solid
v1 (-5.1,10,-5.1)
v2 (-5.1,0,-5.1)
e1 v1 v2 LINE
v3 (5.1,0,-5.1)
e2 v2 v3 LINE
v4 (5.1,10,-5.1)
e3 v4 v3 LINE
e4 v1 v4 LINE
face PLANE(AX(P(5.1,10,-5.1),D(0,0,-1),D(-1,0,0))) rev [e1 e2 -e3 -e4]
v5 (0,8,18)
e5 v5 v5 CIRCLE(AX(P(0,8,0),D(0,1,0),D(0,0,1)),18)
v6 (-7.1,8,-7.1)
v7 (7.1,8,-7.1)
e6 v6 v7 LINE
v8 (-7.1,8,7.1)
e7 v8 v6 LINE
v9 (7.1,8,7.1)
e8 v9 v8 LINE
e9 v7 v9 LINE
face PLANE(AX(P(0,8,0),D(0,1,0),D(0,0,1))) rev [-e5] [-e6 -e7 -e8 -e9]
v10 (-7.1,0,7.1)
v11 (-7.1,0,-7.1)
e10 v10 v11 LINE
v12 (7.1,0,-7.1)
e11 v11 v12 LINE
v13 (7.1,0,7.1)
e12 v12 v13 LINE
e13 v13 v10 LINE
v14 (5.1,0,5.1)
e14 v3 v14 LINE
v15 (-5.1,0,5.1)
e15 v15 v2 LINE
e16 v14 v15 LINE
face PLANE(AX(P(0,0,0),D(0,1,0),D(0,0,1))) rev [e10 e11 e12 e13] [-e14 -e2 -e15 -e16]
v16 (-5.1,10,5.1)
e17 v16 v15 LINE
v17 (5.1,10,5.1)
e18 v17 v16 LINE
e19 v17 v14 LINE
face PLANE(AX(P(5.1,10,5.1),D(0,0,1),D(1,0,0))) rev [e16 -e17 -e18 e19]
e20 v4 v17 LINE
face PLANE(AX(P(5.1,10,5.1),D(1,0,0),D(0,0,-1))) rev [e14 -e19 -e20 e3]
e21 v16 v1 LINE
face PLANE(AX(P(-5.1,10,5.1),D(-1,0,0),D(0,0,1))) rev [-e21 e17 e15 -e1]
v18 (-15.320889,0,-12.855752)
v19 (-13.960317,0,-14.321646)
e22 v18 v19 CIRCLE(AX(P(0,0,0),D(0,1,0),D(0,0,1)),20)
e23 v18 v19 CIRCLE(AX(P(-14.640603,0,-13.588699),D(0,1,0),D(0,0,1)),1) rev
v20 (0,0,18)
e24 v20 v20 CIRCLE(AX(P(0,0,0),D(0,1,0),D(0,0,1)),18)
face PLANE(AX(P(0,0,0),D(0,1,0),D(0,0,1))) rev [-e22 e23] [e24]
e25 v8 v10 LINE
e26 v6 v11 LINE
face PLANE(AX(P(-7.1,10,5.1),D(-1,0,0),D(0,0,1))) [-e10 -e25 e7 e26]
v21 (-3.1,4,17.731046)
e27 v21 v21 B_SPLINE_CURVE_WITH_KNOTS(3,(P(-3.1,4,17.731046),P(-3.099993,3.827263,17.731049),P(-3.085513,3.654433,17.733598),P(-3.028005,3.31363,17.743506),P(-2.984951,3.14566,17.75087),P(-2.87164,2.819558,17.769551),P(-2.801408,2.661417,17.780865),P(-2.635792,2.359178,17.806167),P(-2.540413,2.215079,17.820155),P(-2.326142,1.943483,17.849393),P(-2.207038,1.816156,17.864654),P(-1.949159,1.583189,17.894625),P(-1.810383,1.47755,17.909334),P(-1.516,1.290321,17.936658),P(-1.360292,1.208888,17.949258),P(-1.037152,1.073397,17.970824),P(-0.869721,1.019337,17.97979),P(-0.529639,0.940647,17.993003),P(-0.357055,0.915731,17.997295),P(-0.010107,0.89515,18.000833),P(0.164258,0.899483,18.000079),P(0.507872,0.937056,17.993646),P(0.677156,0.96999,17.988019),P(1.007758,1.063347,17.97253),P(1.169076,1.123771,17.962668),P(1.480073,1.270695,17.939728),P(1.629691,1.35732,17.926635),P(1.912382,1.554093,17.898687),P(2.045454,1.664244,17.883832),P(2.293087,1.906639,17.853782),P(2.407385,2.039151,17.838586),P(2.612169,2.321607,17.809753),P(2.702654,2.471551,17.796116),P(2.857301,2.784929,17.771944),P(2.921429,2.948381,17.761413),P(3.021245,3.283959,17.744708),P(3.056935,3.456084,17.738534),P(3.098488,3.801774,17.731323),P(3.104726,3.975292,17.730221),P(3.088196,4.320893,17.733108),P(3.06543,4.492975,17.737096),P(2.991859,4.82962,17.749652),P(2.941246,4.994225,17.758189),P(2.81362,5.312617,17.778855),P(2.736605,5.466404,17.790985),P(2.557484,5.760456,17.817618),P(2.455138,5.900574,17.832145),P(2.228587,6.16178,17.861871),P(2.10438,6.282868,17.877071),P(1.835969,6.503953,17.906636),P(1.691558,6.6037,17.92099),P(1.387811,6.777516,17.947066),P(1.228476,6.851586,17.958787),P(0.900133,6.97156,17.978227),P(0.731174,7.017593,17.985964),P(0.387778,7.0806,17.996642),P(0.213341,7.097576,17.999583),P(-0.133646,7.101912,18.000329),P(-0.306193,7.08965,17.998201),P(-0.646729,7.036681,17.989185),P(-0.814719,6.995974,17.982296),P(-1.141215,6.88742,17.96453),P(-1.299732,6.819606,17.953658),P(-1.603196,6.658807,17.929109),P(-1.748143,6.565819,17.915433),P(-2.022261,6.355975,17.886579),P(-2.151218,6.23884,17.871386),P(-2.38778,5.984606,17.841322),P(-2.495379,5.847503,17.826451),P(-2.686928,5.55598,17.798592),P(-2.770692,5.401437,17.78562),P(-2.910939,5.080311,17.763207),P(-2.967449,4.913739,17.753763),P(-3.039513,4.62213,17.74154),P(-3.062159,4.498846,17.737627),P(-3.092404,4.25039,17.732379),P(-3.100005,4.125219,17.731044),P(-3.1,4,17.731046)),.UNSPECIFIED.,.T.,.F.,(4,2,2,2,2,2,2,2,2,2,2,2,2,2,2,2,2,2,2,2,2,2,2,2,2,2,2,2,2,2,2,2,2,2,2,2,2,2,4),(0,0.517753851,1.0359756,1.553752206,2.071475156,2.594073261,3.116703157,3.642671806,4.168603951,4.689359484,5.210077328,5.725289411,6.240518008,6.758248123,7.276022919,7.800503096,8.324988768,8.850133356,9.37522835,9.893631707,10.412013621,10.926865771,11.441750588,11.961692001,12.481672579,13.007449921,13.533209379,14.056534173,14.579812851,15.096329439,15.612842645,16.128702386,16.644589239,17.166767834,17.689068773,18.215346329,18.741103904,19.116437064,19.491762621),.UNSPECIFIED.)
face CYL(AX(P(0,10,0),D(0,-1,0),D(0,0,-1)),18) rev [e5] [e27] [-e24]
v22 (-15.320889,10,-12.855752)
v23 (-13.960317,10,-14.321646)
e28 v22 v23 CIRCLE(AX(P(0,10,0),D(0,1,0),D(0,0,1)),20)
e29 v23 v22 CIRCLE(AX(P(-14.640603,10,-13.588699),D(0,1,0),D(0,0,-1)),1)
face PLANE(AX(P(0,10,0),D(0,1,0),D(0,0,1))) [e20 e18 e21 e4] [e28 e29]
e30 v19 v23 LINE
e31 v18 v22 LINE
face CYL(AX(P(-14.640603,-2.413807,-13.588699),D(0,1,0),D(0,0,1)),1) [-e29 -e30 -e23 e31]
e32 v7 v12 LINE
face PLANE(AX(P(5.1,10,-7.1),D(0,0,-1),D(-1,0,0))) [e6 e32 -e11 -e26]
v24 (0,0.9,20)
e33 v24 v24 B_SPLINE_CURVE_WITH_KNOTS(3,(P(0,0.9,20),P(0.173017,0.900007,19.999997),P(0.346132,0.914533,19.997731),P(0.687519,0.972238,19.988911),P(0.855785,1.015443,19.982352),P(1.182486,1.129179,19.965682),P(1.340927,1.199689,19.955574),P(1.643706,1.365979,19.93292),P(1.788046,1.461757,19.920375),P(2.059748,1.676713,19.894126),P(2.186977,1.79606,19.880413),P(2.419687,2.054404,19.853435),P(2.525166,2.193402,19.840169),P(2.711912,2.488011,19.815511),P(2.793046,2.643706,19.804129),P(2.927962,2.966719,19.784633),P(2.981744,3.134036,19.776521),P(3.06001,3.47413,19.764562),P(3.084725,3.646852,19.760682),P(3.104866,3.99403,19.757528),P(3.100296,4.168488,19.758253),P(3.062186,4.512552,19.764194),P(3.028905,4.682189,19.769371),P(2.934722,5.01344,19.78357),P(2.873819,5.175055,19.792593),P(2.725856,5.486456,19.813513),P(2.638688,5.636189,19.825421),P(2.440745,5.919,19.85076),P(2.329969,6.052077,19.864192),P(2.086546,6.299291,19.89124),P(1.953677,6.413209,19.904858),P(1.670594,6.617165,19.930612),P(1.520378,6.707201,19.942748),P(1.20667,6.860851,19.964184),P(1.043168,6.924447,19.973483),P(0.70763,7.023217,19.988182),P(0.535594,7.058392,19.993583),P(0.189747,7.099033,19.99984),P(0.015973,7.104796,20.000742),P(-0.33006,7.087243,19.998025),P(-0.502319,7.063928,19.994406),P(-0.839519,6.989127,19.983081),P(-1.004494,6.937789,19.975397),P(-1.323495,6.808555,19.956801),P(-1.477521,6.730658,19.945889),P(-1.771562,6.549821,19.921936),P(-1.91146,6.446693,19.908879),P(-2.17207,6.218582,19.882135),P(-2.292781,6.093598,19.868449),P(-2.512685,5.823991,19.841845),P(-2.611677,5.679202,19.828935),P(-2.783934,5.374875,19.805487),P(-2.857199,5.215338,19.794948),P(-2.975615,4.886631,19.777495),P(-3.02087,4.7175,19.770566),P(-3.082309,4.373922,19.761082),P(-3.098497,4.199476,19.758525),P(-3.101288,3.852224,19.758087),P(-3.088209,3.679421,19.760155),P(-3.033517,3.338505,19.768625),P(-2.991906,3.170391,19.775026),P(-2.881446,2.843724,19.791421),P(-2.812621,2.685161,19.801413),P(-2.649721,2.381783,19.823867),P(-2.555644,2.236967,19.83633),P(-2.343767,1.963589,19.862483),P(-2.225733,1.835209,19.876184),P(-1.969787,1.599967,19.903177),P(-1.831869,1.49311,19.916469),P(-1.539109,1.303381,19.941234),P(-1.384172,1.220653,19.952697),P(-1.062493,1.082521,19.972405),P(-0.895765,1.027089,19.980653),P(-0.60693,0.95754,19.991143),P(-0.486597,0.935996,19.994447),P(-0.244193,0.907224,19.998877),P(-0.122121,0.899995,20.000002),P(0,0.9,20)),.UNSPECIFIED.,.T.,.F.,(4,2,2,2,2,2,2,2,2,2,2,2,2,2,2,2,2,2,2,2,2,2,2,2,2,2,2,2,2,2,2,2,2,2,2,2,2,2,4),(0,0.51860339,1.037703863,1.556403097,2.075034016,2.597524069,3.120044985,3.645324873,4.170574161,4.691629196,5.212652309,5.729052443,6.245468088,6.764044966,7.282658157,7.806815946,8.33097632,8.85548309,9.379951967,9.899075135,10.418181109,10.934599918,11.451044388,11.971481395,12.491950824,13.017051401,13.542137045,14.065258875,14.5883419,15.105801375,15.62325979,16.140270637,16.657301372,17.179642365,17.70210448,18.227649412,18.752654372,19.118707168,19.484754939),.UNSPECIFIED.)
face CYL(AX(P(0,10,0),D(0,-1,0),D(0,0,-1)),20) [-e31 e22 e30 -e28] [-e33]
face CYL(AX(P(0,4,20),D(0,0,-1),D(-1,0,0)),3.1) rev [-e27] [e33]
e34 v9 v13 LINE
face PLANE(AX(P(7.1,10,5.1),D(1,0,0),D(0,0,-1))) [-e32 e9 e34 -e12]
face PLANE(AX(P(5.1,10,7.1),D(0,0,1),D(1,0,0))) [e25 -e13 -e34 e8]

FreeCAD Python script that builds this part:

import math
import FreeCAD as App
import Part
import Sketcher
Q = App.Units.Quantity


def faces_at(feature, points):
    """Names of the faces that lie closest to the given points."""
    faces = feature.Shape.Faces
    near = lambda p: min(range(len(faces)), key=lambda i: faces[i].distToShape(Part.Vertex(*p))[0])
    return sorted({f"Face{near(p) + 1}" for p in points})

doc = App.newDocument("Part")
params = doc.addObject("Spreadsheet::Sheet", "Params")
for row, (alias, value) in enumerate([
    ("sketch1_diameter", "40 mm"),
    ("pad1_length", "10 mm"),
    ("sketch2_width", "10.2 mm"),
    ("thickness_wall", "2 mm"),
    ("sketch3_diameter", "6.2 mm"),
    ("sketch4_radius", "1 mm"),
    ("pad2_length", "10 mm"),
], start=1):
    params.set(f"A{row}", alias)
    params.set(f"B{row}", "=" + value)
    params.setAlias(f"B{row}", alias)

body = doc.addObject("PartDesign::Body", "Body")

# Sketch on XZ plane
sketch1 = body.newObject("Sketcher::SketchObject", "Sketch")
sketch1.AttachmentSupport = (doc.getObject("XZ_Plane"), [""])
sketch1.MapMode = "FlatFace"
sketch1.addGeometry(Part.Circle(App.Vector(0, 0, 0), App.Vector(0, 0, 1), 20), False)
sketch1.addConstraint(Sketcher.Constraint("Coincident", 0, 3, -1, 1))
sketch1.addConstraint(Sketcher.Constraint("Diameter", 0, Q("40 mm")))
sketch1.setExpression("Constraints[1]", "Params.sketch1_diameter")
pad1 = body.newObject("PartDesign::Pad", "Pad")
pad1.Profile = sketch1
pad1.setExpression("Length", "Params.pad1_length")
pad1.Reversed = True

# Sketch on XZ plane
sketch2 = body.newObject("Sketcher::SketchObject", "Sketch001")
sketch2.AttachmentSupport = (doc.getObject("XZ_Plane"), [""])
sketch2.MapMode = "FlatFace"
sketch2.addGeometry(Part.LineSegment(App.Vector(-5.1, 5.1, 0), App.Vector(-5.1, -5.1, 0)), False)
sketch2.addGeometry(Part.LineSegment(App.Vector(-5.1, -5.1, 0), App.Vector(5.1, -5.1, 0)), False)
sketch2.addGeometry(Part.LineSegment(App.Vector(5.1, -5.1, 0), App.Vector(5.1, 5.1, 0)), False)
sketch2.addGeometry(Part.LineSegment(App.Vector(5.1, 5.1, 0), App.Vector(-5.1, 5.1, 0)), False)
sketch2.addConstraint(Sketcher.Constraint("Coincident", 0, 2, 1, 1))
sketch2.addConstraint(Sketcher.Constraint("Coincident", 1, 2, 2, 1))
sketch2.addConstraint(Sketcher.Constraint("Coincident", 2, 2, 3, 1))
sketch2.addConstraint(Sketcher.Constraint("Coincident", 3, 2, 0, 1))
sketch2.addConstraint(Sketcher.Constraint("Vertical", 0))
sketch2.addConstraint(Sketcher.Constraint("Horizontal", 1))
sketch2.addConstraint(Sketcher.Constraint("Vertical", 2))
sketch2.addConstraint(Sketcher.Constraint("Horizontal", 3))
sketch2.addConstraint(Sketcher.Constraint("Symmetric", 0, 2, 2, 2, -1, 1))
sketch2.addConstraint(Sketcher.Constraint("Equal", 3, 0))
sketch2.addConstraint(Sketcher.Constraint("DistanceX", 1, 1, 1, 2, Q("10.2 mm")))
sketch2.setExpression("Constraints[10]", "Params.sketch2_width")
pocket1 = body.newObject("PartDesign::Pocket", "Pocket")
pocket1.Profile = sketch2
pocket1.Type = "ThroughAll"
doc.recompute()

thickness = body.newObject("PartDesign::Thickness", "Thickness")
thickness.Base = (pocket1, faces_at(pocket1, [(-8, 0, 8)]))
thickness.setExpression("Value", "Params.thickness_wall")
thickness.Reversed = True
thickness.Join = "Intersection"

# Sketch on XY plane
sketch3 = body.newObject("Sketcher::SketchObject", "Sketch002")
sketch3.AttachmentSupport = (doc.getObject("XY_Plane"), [""])
sketch3.MapMode = "FlatFace"
sketch3.AttachmentOffset = App.Placement(App.Vector(0, 0, 7.1), App.Rotation())
sketch3.addGeometry(Part.Circle(App.Vector(0, 4, 0), App.Vector(0, 0, 1), 3.1), False)
sketch3.addConstraint(Sketcher.Constraint("PointOnObject", 0, 3, -2))
sketch3.addConstraint(Sketcher.Constraint("Diameter", 0, Q("6.2 mm")))
sketch3.addConstraint(Sketcher.Constraint("DistanceY", -1, 1, 0, 3, Q("4 mm")))
sketch3.setExpression("Constraints[1]", "Params.sketch3_diameter")
pocket2 = body.newObject("PartDesign::Pocket", "Pocket001")
pocket2.Profile = sketch3
pocket2.Type = "ThroughAll"
pocket2.Reversed = True

# Sketch on XZ plane
sketch4 = body.newObject("Sketcher::SketchObject", "Sketch003")
sketch4.AttachmentSupport = (doc.getObject("XZ_Plane"), [""])
sketch4.MapMode = "FlatFace"
sketch4.AttachmentOffset = App.Placement(App.Vector(0, 0, -10), App.Rotation())
sketch4.addGeometry(Part.LineSegment(App.Vector(-15.320889, -12.855752, 0), App.Vector(-13.960317, -14.321646, 0)), False)
sketch4.addGeometry(Part.ArcOfCircle(Part.Circle(App.Vector(-14.640603, -13.588699, 0), App.Vector(0, 0, 1), 1), math.radians(132.865984), math.radians(312.865984)), False)
sketch4.addConstraint(Sketcher.Constraint("Coincident", 0, 1, 1, 1))
sketch4.addConstraint(Sketcher.Constraint("Coincident", 1, 2, 0, 2))
sketch4.addConstraint(Sketcher.Constraint("Radius", 1, Q("1 mm")))
sketch4.addConstraint(Sketcher.Constraint("DistanceY", 1, 3, -1, 1, Q("13.588699 mm")))
sketch4.addConstraint(Sketcher.Constraint("DistanceX", 0, 1, -1, 1, Q("15.320889 mm")))
sketch4.addConstraint(Sketcher.Constraint("DistanceX", 0, 1, 1, 2, Q("1.360572 mm")))
sketch4.addConstraint(Sketcher.Constraint("DistanceX", 1, 3, -1, 1, Q("14.640603 mm")))
sketch4.setExpression("Constraints[2]", "Params.sketch4_radius")
pad2 = body.newObject("PartDesign::Pad", "Pad001")
pad2.Profile = sketch4
pad2.setExpression("Length", "Params.pad2_length")

doc.recompute()
